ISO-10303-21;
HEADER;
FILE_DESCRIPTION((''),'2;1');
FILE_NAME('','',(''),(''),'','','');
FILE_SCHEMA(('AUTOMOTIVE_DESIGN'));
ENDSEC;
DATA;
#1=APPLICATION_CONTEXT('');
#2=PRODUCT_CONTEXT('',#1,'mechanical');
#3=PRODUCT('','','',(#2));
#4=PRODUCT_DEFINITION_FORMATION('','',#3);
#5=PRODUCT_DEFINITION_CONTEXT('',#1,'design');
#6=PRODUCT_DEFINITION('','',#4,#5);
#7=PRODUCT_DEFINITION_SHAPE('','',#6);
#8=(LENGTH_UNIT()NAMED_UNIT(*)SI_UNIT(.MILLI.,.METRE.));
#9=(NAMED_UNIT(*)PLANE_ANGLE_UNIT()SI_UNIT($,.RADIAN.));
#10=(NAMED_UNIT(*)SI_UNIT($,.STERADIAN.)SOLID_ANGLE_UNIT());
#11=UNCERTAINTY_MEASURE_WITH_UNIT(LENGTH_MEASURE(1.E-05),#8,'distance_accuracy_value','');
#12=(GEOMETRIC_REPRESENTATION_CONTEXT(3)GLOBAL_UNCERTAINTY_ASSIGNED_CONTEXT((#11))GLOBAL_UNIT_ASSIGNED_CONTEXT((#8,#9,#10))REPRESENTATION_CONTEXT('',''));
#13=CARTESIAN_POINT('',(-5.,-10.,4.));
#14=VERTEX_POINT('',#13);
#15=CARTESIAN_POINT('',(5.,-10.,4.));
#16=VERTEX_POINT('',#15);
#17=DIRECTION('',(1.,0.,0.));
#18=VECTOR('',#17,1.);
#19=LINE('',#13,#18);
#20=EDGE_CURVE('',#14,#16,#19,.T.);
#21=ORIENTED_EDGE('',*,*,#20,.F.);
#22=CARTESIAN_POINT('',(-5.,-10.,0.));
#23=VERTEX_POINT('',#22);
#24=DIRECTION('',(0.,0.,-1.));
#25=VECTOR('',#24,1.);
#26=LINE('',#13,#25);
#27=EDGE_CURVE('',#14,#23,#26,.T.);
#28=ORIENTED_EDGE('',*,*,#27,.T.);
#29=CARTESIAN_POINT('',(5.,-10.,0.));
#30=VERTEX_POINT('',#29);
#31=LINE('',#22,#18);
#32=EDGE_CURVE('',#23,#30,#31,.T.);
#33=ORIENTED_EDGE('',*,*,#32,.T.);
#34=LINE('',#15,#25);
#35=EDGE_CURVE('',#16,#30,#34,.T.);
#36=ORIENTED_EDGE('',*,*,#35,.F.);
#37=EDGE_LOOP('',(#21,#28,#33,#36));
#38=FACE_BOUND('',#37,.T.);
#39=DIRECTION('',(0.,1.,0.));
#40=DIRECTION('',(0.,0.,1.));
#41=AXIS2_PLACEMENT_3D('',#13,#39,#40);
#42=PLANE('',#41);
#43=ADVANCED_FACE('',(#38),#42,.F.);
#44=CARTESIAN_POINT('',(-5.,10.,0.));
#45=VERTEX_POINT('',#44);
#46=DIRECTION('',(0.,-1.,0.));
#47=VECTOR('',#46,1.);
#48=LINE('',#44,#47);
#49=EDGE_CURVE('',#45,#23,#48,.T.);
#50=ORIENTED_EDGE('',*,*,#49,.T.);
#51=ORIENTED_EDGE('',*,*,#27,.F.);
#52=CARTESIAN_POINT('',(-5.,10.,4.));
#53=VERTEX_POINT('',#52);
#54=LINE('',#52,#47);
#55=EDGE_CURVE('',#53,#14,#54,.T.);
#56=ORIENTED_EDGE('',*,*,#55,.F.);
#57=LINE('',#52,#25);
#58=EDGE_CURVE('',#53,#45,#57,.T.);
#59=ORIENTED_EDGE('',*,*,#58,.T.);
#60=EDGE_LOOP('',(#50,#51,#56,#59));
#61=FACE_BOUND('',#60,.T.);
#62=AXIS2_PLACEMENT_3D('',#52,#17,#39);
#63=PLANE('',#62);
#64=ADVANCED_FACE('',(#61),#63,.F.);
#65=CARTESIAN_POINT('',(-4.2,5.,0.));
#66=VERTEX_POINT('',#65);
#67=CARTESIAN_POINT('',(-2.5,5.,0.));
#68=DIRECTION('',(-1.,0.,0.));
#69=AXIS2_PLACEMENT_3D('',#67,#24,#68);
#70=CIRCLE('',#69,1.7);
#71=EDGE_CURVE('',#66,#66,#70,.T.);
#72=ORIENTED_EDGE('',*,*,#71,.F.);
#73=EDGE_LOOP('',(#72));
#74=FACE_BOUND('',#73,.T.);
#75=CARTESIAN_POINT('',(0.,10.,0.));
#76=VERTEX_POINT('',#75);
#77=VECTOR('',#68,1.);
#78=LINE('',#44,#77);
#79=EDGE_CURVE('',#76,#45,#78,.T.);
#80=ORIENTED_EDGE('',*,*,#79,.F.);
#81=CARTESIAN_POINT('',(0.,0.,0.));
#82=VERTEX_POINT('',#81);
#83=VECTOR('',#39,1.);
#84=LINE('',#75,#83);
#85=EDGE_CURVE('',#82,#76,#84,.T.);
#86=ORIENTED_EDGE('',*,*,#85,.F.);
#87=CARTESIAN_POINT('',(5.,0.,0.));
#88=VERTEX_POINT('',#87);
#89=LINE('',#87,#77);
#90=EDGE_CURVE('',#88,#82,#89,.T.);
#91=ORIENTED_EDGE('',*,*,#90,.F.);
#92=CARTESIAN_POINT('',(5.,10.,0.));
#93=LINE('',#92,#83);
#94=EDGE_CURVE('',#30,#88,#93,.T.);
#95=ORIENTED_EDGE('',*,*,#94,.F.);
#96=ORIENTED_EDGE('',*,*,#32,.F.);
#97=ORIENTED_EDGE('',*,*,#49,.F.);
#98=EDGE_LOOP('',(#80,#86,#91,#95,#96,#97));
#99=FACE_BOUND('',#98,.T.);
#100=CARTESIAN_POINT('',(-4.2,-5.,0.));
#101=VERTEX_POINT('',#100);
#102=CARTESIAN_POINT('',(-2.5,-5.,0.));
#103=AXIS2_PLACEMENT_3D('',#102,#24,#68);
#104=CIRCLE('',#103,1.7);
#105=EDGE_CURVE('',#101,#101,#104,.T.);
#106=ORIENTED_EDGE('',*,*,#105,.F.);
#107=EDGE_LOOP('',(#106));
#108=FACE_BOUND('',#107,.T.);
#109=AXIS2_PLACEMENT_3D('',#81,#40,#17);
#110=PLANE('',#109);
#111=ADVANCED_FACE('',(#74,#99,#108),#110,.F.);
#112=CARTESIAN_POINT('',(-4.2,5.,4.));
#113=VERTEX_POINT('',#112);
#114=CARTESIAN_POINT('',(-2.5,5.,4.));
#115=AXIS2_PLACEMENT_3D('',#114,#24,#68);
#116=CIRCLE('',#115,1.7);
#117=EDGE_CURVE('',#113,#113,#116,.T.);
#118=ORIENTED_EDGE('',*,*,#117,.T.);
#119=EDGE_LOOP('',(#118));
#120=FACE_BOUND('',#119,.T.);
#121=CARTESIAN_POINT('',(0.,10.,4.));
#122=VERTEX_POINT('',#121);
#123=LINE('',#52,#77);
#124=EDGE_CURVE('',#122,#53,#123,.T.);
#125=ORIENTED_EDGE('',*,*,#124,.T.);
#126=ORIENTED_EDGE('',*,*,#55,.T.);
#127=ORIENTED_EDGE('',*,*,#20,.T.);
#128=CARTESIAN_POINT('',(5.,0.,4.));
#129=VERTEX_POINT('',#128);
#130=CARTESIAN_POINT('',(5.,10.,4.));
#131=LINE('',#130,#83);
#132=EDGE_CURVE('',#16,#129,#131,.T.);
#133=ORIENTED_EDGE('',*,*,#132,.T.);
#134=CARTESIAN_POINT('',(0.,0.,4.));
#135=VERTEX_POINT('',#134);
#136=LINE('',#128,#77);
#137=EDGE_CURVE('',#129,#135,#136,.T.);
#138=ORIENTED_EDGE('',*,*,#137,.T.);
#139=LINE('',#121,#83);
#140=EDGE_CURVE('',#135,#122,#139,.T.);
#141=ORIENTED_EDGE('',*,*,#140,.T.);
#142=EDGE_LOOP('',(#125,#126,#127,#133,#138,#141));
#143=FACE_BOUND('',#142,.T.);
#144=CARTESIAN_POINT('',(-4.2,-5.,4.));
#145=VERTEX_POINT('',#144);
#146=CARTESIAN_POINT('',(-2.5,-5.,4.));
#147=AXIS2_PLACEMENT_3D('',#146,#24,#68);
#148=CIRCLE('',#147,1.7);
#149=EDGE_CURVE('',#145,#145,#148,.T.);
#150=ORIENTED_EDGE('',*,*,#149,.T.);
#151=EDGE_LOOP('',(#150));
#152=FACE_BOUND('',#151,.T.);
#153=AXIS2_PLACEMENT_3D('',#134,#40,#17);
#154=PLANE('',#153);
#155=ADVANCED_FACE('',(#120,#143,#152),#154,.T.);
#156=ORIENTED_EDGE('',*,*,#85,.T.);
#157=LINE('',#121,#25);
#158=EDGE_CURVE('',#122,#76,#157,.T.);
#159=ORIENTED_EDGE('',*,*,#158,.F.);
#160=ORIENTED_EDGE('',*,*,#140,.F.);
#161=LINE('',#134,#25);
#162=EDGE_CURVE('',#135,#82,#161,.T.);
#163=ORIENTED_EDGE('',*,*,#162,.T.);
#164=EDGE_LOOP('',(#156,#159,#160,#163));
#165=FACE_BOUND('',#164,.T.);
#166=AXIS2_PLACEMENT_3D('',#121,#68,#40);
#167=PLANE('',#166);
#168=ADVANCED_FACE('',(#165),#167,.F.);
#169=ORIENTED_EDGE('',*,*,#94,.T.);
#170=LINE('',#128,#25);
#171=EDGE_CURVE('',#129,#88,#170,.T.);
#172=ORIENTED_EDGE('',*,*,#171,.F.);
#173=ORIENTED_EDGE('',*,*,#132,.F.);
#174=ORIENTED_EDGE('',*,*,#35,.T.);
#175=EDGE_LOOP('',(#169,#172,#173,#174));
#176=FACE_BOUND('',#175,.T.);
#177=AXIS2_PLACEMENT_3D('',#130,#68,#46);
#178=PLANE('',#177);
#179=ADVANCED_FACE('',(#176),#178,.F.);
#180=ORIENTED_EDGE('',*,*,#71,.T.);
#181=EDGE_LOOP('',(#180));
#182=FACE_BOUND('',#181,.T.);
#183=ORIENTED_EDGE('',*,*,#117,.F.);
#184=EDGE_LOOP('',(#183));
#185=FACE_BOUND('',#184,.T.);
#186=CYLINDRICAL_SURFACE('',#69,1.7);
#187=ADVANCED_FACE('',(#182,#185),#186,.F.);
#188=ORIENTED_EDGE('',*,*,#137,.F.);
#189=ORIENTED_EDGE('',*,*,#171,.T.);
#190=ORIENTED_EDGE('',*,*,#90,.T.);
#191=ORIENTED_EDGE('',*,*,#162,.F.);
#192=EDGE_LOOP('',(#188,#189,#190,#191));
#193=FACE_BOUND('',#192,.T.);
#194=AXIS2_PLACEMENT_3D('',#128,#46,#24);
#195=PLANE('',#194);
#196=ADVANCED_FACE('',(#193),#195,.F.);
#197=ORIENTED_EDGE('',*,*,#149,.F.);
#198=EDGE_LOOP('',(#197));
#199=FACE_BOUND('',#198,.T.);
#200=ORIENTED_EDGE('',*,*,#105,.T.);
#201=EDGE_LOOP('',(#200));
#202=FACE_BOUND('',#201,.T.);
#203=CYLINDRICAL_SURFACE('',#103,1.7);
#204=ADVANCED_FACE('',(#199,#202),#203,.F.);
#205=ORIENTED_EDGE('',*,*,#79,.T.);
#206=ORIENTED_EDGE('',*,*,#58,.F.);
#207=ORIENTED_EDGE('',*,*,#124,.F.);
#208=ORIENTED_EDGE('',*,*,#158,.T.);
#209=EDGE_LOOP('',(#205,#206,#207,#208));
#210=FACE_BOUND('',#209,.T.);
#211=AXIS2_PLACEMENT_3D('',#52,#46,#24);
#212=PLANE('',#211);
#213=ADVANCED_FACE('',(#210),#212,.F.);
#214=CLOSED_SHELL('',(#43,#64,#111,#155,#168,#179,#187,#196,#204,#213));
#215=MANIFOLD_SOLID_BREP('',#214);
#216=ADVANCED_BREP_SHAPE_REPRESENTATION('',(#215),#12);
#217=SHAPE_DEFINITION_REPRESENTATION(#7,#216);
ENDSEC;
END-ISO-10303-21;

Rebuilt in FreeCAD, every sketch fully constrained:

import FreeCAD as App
import Part
import Sketcher
from FreeCAD import Vector


def add_polygon(sketch, points):
    """Adds a closed chain of lines whose ends are joined by coincident constraints."""
    first, n = sketch.GeometryCount, len(points)
    for a, b in zip(points, points[1:] + points[:1]):
        sketch.addGeometry(Part.LineSegment(App.Vector(*a, 0), App.Vector(*b, 0)), False)
    for i in range(n):
        sketch.addConstraint(Sketcher.Constraint("Coincident", first + i, 2, first + (i + 1) % n, 1))

doc = App.newDocument("Part")
params = doc.addObject("Spreadsheet::Sheet", "Params")
for row, (alias, value) in enumerate([
    ("sketch1_width", "10 mm"),
    ("sketch1_height", "20 mm"),
    ("pad1_length", "4 mm"),
    ("sketch2_diameter", "3.4 mm"),
    ("hole_diameter", "3.4 mm"),
    ("sketch3_width", "5 mm"),
    ("sketch3_height", "10 mm"),
    ("pocket1_length", "4 mm"),
], start=1):
    params.set(f"A{row}", alias)
    params.set(f"B{row}", "=" + value)
    params.setAlias(f"B{row}", alias)

body = doc.addObject("PartDesign::Body", "Body")

# Sketch on XY plane
sketch1 = body.newObject("Sketcher::SketchObject", "Sketch")
sketch1.AttachmentSupport = (doc.getObject("XY_Plane"), [""])
sketch1.MapMode = "FlatFace"
add_polygon(sketch1, [(-5, 10), (-5, -10), (5, -10), (5, 10)])  # lines 0-3
sketch1.addConstraint([
    Sketcher.Constraint("Vertical", 0),
    Sketcher.Constraint("Horizontal", 1),
    Sketcher.Constraint("Vertical", 2),
    Sketcher.Constraint("Horizontal", 3),
    Sketcher.Constraint("Symmetric", 0, 2, 2, 2, -1, 1),
    Sketcher.Constraint("DistanceX", 1, 1, 1, 2, 10.0),
    Sketcher.Constraint("DistanceY", 0, 2, 0, 1, 20.0),
])
sketch1.setExpression("Constraints[9]", "Params.sketch1_width")
sketch1.setExpression("Constraints[10]", "Params.sketch1_height")
pad1 = body.newObject("PartDesign::Pad", "Pad")
pad1.Profile = sketch1
pad1.setExpression("Length", "Params.pad1_length")

# Sketch on XY plane
sketch2 = body.newObject("Sketcher::SketchObject", "Sketch001")
sketch2.AttachmentSupport = (doc.getObject("XY_Plane"), [""])
sketch2.MapMode = "FlatFace"
sketch2.addGeometry([
    Part.Circle(Vector(-2.5, 5, 0), Vector(0, 0, 1), 1.7),
    Part.Circle(Vector(-2.5, -5, 0), Vector(0, 0, 1), 1.7),
], False)
sketch2.addConstraint([
    Sketcher.Constraint("Equal", 0, 1),
    Sketcher.Constraint("Symmetric", 0, 3, 1, 3, -1),
    Sketcher.Constraint("Diameter", 0, 3.4),
    Sketcher.Constraint("DistanceY", -1, 1, 0, 3, 5.0),
    Sketcher.Constraint("DistanceX", 0, 3, -1, 1, 2.5),
])
sketch2.setExpression("Constraints[2]", "Params.sketch2_diameter")
doc.recompute()
hole = body.newObject("PartDesign::Hole", "Hole")
hole.Profile = sketch2
hole.ThreadType = "None"
hole.setExpression("Diameter", "Params.hole_diameter")
hole.DepthType = "ThroughAll"
hole.Reversed = True

# Sketch on XY plane
sketch3 = body.newObject("Sketcher::SketchObject", "Sketch002")
sketch3.AttachmentSupport = (doc.getObject("XY_Plane"), [""])
sketch3.MapMode = "FlatFace"
add_polygon(sketch3, [(5, 10), (5, 0), (0, 0), (0, 10)])  # lines 0-3
sketch3.addConstraint([
    Sketcher.Constraint("Vertical", 0),
    Sketcher.Constraint("Horizontal", 1),
    Sketcher.Constraint("Vertical", 2),
    Sketcher.Constraint("Horizontal", 3),
    Sketcher.Constraint("Coincident", 1, 2, -1, 1),
    Sketcher.Constraint("DistanceX", 1, 2, 1, 1, 5.0),
    Sketcher.Constraint("DistanceY", 0, 2, 0, 1, 10.0),
])
sketch3.setExpression("Constraints[9]", "Params.sketch3_width")
sketch3.setExpression("Constraints[10]", "Params.sketch3_height")
pocket1 = body.newObject("PartDesign::Pocket", "Pocket")
pocket1.Profile = sketch3
pocket1.setExpression("Length", "Params.pocket1_length")
pocket1.Reversed = True

doc.recompute()
